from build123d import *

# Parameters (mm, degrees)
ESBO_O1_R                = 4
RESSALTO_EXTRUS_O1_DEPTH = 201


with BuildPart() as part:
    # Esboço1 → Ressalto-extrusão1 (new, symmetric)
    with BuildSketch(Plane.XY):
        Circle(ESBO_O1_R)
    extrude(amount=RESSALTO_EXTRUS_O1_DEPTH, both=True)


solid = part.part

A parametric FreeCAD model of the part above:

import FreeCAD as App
import Part
import Sketcher
from FreeCAD import Vector
Q = App.Units.Quantity

doc = App.newDocument("Part")
body = doc.addObject("PartDesign::Body", "Body")

sketch1 = body.newObject("Sketcher::SketchObject", "Sketch")
sketch1.AttachmentSupport = (doc.getObject("XY_Plane"), [""])
sketch1.MapMode = "FlatFace"
sketch1.addGeometry(Part.Circle(Vector(0, 0, 0), Vector(0, 0, 1), 4), False)
sketch1.addConstraint(Sketcher.Constraint("Coincident", 0, 3, -1, 1))
sketch1.addConstraint(Sketcher.Constraint("Diameter", 0, Q("8 mm")))
pad1 = body.newObject("PartDesign::Pad", "Pad")
pad1.Profile = sketch1
pad1.Length = 402
pad1.Midplane = True

doc.recompute()
